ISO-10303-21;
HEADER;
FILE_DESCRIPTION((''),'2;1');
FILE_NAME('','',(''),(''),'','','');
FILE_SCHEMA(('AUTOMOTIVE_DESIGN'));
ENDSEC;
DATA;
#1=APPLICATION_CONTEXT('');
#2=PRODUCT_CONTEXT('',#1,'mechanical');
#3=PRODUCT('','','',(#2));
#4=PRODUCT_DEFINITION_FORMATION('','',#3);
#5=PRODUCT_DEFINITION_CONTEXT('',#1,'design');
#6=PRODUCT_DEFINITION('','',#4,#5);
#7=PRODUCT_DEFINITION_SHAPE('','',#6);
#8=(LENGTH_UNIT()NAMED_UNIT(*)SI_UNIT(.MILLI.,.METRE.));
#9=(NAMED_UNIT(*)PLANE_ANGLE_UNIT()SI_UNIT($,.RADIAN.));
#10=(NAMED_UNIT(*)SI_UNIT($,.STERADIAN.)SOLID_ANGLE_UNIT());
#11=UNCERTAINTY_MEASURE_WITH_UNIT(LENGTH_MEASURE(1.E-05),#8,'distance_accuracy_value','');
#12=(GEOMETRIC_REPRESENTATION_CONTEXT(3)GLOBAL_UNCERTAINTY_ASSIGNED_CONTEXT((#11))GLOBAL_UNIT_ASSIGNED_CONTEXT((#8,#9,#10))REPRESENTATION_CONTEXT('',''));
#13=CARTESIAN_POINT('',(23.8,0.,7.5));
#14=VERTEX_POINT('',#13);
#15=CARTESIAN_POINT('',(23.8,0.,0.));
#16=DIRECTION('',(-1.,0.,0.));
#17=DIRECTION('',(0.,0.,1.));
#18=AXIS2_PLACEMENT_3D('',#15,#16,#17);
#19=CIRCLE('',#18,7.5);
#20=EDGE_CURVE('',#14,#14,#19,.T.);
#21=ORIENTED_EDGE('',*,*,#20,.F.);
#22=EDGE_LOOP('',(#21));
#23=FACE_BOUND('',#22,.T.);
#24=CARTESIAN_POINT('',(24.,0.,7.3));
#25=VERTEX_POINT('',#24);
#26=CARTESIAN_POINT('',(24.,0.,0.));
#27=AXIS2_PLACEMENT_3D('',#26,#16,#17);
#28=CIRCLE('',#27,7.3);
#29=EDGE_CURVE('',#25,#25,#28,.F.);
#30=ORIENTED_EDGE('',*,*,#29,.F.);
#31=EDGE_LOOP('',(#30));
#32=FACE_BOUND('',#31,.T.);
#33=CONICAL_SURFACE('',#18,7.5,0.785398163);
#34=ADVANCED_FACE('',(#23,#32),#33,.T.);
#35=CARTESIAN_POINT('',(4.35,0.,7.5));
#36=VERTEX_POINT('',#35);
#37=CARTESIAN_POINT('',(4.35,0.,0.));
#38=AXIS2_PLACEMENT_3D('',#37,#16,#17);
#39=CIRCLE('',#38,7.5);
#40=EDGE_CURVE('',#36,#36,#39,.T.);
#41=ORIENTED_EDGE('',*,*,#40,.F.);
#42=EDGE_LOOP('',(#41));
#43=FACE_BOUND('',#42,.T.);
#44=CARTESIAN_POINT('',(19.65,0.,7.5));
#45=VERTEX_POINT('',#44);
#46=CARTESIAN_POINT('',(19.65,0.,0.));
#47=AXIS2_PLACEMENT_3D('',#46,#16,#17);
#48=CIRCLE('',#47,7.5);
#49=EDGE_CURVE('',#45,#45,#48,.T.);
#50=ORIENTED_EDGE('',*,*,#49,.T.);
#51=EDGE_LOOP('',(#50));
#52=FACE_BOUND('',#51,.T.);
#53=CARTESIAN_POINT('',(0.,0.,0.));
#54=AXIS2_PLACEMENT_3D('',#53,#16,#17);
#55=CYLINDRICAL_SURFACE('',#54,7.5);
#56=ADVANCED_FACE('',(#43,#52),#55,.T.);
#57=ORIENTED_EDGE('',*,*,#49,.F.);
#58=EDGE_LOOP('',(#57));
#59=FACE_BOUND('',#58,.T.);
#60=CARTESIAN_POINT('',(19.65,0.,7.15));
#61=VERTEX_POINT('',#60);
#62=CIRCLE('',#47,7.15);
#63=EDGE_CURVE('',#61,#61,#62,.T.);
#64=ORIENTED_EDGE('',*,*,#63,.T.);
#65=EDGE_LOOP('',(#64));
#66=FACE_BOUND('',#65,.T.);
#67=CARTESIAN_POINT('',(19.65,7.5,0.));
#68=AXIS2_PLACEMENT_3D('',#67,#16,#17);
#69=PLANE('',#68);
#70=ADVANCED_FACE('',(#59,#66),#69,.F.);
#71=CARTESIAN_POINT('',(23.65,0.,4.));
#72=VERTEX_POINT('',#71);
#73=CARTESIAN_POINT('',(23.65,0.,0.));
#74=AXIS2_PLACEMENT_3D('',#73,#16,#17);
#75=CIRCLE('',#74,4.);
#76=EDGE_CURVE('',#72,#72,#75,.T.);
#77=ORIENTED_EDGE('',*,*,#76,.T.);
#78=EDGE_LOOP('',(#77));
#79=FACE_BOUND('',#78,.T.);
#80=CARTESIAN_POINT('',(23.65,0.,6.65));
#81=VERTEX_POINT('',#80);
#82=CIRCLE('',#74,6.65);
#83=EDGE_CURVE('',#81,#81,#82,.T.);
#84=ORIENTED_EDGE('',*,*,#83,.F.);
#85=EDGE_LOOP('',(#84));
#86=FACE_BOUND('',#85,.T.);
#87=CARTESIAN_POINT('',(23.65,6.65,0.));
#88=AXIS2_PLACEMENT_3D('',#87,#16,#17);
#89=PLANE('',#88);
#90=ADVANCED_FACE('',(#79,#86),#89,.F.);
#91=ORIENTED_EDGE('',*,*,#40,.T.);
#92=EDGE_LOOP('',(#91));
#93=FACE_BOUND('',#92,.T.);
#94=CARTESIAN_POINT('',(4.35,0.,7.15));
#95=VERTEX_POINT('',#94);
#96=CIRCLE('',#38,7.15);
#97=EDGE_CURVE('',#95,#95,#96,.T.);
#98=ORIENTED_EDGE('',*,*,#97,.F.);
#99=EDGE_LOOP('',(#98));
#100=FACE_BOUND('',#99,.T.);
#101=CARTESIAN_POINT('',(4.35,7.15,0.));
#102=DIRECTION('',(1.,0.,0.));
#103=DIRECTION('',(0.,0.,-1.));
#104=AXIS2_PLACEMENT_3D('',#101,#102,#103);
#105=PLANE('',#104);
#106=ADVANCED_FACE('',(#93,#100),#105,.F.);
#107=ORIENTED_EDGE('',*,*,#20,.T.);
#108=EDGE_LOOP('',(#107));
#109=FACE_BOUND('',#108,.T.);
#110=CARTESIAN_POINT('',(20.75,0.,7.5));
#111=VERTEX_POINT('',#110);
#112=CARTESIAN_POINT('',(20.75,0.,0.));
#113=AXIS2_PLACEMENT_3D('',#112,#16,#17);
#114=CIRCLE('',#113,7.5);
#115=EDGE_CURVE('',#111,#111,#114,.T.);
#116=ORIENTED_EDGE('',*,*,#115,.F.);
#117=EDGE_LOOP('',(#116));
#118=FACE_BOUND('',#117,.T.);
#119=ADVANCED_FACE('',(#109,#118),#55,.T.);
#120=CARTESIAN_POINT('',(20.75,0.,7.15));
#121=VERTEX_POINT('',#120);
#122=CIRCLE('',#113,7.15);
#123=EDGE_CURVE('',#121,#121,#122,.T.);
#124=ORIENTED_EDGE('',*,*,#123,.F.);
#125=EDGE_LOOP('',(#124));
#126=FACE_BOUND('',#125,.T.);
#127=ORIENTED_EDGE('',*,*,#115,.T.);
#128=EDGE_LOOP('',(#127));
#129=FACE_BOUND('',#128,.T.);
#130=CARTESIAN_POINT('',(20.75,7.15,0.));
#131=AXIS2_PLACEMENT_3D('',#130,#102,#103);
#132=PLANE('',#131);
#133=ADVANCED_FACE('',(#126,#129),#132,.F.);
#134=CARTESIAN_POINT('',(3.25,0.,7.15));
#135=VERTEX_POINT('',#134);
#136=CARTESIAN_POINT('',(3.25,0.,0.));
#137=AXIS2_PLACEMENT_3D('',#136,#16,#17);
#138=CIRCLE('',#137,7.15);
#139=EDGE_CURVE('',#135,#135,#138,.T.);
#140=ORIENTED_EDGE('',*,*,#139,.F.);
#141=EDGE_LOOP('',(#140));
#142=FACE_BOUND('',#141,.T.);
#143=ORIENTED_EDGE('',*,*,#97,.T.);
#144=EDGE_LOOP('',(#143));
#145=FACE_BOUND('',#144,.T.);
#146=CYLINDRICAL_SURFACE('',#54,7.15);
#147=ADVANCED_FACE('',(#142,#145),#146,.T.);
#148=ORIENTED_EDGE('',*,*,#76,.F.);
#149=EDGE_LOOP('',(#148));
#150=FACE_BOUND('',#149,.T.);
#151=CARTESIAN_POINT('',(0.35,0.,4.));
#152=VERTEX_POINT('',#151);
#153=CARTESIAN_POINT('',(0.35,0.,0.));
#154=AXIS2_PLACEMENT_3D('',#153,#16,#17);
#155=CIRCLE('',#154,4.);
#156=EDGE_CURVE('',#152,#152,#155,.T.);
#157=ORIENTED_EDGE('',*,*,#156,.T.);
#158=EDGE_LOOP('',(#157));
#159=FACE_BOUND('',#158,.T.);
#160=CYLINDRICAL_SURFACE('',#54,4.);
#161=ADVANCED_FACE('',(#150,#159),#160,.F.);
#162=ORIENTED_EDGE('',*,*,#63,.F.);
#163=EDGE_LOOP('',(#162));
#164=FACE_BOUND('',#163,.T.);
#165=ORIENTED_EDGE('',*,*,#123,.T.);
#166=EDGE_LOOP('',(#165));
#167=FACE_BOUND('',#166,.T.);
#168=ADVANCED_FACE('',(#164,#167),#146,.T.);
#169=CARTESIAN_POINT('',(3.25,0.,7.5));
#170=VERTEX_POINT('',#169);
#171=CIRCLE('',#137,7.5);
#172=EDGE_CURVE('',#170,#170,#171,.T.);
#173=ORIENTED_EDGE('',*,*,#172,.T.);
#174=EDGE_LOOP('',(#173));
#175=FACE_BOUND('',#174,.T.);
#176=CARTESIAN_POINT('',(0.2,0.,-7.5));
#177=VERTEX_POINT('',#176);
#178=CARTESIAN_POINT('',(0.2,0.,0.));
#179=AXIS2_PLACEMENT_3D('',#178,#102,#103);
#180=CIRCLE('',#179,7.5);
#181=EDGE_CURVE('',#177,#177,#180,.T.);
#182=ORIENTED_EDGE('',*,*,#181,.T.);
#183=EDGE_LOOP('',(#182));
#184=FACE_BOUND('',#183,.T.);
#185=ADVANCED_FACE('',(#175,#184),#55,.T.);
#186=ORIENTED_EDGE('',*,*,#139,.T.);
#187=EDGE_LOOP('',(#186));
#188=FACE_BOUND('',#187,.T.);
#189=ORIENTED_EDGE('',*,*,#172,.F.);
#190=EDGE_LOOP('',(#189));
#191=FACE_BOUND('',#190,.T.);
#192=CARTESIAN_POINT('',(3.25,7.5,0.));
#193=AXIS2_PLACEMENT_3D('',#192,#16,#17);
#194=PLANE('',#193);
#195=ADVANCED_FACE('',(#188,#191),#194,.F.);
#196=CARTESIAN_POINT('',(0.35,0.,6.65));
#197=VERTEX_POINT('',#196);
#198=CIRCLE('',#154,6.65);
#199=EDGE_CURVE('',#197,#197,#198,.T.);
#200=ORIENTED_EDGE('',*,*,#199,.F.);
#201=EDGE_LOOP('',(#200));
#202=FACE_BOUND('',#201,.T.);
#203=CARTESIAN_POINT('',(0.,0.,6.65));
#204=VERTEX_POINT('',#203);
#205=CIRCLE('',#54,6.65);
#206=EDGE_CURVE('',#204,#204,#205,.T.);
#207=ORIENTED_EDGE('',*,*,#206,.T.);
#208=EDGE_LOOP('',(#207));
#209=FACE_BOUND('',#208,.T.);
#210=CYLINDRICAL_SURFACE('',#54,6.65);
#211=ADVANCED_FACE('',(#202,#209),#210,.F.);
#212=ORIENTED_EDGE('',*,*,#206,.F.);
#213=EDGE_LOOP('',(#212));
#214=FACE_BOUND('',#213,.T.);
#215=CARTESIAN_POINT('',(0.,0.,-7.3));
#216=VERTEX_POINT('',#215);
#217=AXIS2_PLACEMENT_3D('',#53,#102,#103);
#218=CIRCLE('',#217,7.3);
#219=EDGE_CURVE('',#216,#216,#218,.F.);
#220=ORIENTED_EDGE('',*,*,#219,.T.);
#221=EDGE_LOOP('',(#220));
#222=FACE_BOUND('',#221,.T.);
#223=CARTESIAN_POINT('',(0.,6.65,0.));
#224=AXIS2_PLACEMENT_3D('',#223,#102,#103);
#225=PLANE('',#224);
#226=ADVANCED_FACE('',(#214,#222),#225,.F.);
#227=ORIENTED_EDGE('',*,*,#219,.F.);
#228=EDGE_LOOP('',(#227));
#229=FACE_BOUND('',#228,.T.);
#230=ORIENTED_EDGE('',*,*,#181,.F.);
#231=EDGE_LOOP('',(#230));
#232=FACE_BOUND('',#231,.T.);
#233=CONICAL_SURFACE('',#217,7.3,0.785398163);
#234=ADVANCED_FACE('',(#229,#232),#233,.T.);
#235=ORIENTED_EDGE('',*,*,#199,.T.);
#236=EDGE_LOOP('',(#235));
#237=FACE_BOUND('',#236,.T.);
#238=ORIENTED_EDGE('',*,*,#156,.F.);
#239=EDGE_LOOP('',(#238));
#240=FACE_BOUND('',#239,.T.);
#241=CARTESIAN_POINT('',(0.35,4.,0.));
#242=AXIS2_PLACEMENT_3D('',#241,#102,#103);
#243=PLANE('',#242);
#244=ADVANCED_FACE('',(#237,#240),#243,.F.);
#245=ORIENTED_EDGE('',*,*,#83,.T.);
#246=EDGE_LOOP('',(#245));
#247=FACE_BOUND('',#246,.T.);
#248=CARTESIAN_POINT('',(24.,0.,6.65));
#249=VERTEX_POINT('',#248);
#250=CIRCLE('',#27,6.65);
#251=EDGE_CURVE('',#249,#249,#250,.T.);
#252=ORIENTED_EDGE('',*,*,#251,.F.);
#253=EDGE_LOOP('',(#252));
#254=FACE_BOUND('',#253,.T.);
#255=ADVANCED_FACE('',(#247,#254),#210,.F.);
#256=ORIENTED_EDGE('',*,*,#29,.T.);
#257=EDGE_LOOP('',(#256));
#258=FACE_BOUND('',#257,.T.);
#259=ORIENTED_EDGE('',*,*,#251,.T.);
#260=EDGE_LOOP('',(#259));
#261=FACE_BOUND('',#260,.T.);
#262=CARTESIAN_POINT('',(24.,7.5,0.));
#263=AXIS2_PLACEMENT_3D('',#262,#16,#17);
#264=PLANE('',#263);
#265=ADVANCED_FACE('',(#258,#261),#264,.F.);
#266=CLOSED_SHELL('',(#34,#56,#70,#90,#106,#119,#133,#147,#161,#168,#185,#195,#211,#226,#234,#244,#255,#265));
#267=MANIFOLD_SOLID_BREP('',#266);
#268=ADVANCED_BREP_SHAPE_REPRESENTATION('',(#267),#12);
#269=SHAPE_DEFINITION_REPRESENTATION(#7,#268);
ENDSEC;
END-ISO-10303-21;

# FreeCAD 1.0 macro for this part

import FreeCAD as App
import Part
import Sketcher
from FreeCAD import Vector


def edges_at(feature, points):
    """Names of the edges that pass closest to the given points."""
    edges = feature.Shape.Edges
    near = lambda p: min(range(len(edges)), key=lambda i: edges[i].distToShape(Part.Vertex(*p))[0])
    return sorted({f"Edge{near(p) + 1}" for p in points})


def add_polygon(sketch, points):
    """Adds a closed chain of lines whose ends are joined by coincident constraints."""
    first, n = sketch.GeometryCount, len(points)
    for a, b in zip(points, points[1:] + points[:1]):
        sketch.addGeometry(Part.LineSegment(App.Vector(*a, 0), App.Vector(*b, 0)), False)
    for i in range(n):
        sketch.addConstraint(Sketcher.Constraint("Coincident", first + i, 2, first + (i + 1) % n, 1))

doc = App.newDocument("Part")
body = doc.addObject("PartDesign::Body", "Body")

sketch1 = body.newObject("Sketcher::SketchObject", "Sketch")
sketch1.AttachmentSupport = (doc.getObject("XY_Plane"), [""])
sketch1.MapMode = "FlatFace"
add_polygon(sketch1, [(0.35, 6.65), (0.35, 4), (23.65, 4), (23.65, 6.65), (24, 6.65), (24, 7.5), (20.75, 7.5), (20.75, 7.15), (19.65, 7.15), (19.65, 7.5), (4.35, 7.5), (4.35, 7.15), (3.25, 7.15), (3.25, 7.5), (0, 7.5), (0, 6.65)])
sketch1.addConstraint([
    Sketcher.Constraint("Vertical", 0),
    Sketcher.Constraint("Horizontal", 1),
    Sketcher.Constraint("Vertical", 2),
    Sketcher.Constraint("Horizontal", 3),
    Sketcher.Constraint("Vertical", 4),
    Sketcher.Constraint("Horizontal", 5),
    Sketcher.Constraint("Vertical", 6),
    Sketcher.Constraint("Horizontal", 7),
    Sketcher.Constraint("Vertical", 8),
    Sketcher.Constraint("Horizontal", 9),
    Sketcher.Constraint("Vertical", 10),
    Sketcher.Constraint("Horizontal", 11),
    Sketcher.Constraint("Vertical", 12),
    Sketcher.Constraint("Horizontal", 13),
    Sketcher.Constraint("Vertical", 14),
    Sketcher.Constraint("Horizontal", 15),
    Sketcher.Constraint("PointOnObject", 13, 2, -2),
    Sketcher.Constraint("Horizontal", 5, 2, 8, 2),
    Sketcher.Constraint("Horizontal", 7, 2, 10, 2),
    Sketcher.Constraint("Horizontal", 9, 2, 12, 2),
    Sketcher.Constraint("Horizontal", 3, 2, 14, 2),
    Sketcher.Constraint("Equal", 7, 11),
    Sketcher.Constraint("Equal", 5, 13),
    Sketcher.Constraint("Equal", 3, 15),
    Sketcher.Constraint("Equal", 15, 6),
    Sketcher.Constraint("DistanceX", 1, 1, 1, 2, 23.3),
    Sketcher.Constraint("DistanceX", 7, 2, 7, 1, 1.1),
    Sketcher.Constraint("DistanceX", 9, 2, 9, 1, 15.3),
    Sketcher.Constraint("DistanceY", -1, 1, 0, 2, 4.0),
    Sketcher.Constraint("DistanceX", -1, 1, 3, 2, 24.0),
    Sketcher.Constraint("DistanceY", 0, 2, 0, 1, 2.65),
    Sketcher.Constraint("DistanceY", 4, 1, 4, 2, 0.85),
])
revolution = body.newObject("PartDesign::Revolution", "Revolution")
revolution.Profile = sketch1
revolution.ReferenceAxis = (sketch1, ["H_Axis"])
revolution.Angle = 360
doc.recompute()

chamfer = body.newObject("PartDesign::Chamfer", "Chamfer")
chamfer.Base = (revolution, edges_at(revolution, [(24, 0, -7.5), (0, 0, -7.5)]))
chamfer.Size = 0.2

doc.recompute()
